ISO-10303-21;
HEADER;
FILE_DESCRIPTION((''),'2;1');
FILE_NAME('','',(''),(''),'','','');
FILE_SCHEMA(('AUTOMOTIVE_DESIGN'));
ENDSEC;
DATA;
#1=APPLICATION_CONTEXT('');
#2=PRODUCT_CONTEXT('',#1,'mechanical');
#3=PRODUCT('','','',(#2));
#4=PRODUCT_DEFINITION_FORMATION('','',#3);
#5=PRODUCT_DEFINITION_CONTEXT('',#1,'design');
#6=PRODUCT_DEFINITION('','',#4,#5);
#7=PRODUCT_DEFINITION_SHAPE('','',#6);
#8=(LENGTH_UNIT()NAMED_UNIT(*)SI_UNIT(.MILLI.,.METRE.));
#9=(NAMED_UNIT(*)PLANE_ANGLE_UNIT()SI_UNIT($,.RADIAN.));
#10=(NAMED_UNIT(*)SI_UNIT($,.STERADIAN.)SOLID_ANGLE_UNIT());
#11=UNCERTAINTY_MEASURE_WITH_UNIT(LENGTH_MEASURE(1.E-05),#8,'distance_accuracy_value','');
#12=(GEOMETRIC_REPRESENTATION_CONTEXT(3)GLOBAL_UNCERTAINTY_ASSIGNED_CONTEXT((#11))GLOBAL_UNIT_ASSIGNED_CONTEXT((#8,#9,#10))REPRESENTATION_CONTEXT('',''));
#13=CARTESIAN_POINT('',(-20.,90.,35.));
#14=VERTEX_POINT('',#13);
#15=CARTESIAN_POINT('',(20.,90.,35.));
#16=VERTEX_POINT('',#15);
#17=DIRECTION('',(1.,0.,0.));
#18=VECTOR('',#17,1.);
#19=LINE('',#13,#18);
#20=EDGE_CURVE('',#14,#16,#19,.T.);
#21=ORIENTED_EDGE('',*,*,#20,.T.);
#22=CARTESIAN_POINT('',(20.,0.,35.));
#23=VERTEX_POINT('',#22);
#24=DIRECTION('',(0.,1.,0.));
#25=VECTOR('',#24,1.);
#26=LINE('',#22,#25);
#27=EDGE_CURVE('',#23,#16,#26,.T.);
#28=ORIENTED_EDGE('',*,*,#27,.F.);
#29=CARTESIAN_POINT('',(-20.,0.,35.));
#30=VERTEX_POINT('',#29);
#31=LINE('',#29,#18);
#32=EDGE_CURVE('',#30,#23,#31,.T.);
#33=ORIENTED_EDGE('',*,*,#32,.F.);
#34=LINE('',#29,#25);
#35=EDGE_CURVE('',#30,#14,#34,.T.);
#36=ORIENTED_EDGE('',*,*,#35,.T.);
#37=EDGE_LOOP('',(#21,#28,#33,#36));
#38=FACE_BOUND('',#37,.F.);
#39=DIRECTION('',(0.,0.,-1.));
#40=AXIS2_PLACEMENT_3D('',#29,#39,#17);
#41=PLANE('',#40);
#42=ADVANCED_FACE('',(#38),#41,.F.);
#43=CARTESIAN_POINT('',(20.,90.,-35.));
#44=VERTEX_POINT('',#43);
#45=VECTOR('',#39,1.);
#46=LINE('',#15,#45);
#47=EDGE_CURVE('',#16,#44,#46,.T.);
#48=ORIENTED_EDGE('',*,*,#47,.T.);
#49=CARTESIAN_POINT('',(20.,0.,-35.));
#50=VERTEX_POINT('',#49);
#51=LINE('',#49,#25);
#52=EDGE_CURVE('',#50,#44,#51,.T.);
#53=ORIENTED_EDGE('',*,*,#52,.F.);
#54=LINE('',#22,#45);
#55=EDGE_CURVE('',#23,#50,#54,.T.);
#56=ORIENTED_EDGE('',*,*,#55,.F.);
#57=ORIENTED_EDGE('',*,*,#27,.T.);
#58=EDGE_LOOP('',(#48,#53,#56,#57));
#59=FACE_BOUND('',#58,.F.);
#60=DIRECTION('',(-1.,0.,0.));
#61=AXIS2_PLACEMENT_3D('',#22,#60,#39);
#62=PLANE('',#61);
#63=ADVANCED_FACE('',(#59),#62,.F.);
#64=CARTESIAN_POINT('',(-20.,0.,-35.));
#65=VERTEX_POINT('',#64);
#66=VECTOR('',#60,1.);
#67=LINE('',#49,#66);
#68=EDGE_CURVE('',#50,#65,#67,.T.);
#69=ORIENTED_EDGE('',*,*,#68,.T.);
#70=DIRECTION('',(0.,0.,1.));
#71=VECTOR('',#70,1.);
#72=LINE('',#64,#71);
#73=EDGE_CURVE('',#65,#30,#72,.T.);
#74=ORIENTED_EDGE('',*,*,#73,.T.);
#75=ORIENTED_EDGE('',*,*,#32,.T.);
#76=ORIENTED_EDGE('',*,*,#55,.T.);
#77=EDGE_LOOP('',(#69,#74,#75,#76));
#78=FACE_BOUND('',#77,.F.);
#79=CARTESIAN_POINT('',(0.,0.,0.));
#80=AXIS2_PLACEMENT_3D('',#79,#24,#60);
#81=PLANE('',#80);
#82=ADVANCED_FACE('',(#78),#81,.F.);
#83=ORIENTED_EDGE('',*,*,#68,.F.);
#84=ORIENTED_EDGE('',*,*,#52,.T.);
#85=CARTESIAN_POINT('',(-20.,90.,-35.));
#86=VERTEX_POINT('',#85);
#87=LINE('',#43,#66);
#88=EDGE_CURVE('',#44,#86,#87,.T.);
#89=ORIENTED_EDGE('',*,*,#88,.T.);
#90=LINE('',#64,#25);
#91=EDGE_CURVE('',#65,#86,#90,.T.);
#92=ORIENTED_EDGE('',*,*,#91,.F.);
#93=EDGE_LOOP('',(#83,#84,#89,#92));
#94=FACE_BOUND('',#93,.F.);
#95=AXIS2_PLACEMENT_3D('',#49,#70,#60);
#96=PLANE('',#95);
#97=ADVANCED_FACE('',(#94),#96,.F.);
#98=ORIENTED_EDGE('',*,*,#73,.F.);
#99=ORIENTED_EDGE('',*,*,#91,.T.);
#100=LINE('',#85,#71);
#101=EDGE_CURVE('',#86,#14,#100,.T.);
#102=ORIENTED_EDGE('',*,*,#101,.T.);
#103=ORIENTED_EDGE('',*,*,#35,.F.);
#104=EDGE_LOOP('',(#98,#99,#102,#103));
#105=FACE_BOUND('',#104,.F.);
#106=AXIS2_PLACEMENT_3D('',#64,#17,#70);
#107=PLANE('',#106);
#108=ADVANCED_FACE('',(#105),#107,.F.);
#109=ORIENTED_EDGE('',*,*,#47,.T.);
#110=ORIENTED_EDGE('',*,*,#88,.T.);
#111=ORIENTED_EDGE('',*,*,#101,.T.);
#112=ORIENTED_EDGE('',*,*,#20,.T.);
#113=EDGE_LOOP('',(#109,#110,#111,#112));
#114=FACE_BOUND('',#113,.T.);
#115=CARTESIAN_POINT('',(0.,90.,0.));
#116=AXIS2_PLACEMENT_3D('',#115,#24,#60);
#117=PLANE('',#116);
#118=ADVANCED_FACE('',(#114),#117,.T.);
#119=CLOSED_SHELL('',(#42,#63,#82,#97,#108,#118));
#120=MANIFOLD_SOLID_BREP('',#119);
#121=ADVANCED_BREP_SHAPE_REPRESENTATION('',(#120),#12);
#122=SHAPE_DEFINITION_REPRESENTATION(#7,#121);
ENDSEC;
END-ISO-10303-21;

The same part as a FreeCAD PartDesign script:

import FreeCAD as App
import Part
import Sketcher
from FreeCAD import Vector
Q = App.Units.Quantity


def add_polygon(sketch, points):
    """Adds a closed chain of lines whose ends are joined by coincident constraints."""
    first, n = sketch.GeometryCount, len(points)
    for a, b in zip(points, points[1:] + points[:1]):
        sketch.addGeometry(Part.LineSegment(App.Vector(*a, 0), App.Vector(*b, 0)), False)
    for i in range(n):
        sketch.addConstraint(Sketcher.Constraint("Coincident", first + i, 2, first + (i + 1) % n, 1))

doc = App.newDocument("Part")
body = doc.addObject("PartDesign::Body", "Body")

sketch1 = doc.addObject("Sketcher::SketchObject", "Sketch")
body.addObject(sketch1)
sketch1.AttachmentSupport = (doc.XZ_Plane, [""])
sketch1.MapMode = "FlatFace"
add_polygon(sketch1, [(-20, -35), (-20, 35), (20, 35), (20, -35)])
sketch1.addConstraint([
    Sketcher.Constraint("Vertical", 0),
    Sketcher.Constraint("Horizontal", 1),
    Sketcher.Constraint("Vertical", 2),
    Sketcher.Constraint("Horizontal", 3),
    Sketcher.Constraint("Symmetric", 0, 2, 2, 2, -1, 1),
    Sketcher.Constraint("DistanceX", 1, 1, 1, 2, Q("40 mm")),
    Sketcher.Constraint("DistanceY", 0, 1, 0, 2, Q("70 mm")),
])
pad1 = doc.addObject("PartDesign::Pad", "Pad")
body.addObject(pad1)
pad1.Profile = sketch1
pad1.Length = 90
pad1.Reversed = True

doc.recompute()
